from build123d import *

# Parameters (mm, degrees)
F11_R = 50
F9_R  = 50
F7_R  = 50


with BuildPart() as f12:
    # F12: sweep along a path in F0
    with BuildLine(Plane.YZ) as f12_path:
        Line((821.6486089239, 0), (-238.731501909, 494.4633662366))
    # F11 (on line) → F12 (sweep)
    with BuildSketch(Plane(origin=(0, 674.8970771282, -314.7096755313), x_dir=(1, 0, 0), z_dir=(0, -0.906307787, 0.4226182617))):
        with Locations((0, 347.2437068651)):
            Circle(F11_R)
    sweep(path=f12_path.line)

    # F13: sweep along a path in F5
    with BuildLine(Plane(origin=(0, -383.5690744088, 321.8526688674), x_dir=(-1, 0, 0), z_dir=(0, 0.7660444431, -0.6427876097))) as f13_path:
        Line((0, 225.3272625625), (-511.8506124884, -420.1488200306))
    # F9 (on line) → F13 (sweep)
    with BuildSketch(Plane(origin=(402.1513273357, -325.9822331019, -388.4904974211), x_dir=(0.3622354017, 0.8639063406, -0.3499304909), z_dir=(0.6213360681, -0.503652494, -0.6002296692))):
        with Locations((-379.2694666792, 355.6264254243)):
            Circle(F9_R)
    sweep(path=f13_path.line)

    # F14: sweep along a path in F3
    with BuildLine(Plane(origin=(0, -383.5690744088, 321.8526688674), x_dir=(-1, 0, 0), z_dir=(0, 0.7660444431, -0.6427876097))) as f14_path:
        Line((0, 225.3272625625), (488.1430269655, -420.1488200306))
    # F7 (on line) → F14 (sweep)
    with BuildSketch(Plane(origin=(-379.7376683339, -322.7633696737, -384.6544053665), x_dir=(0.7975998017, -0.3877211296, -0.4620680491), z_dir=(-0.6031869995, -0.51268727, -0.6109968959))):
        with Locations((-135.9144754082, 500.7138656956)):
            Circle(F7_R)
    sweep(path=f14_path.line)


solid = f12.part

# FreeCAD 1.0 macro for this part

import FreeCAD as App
import Part
import Sketcher
from FreeCAD import Vector
Q = App.Units.Quantity

doc = App.newDocument("Part")
body = doc.addObject("PartDesign::Body", "Body")

# Sketch on an angled plane
sketch1 = body.newObject("Sketcher::SketchObject", "Sketch")
sketch1.Placement = App.Placement(Vector(0, 674.897077, -314.709676), App.Rotation(Vector(1, 0, 0), Vector(0, 0.422618262, 0.906307787), Vector(0, -0.906307787, 0.422618262), "ZXY"))
sketch1.addGeometry(Part.Circle(Vector(0, 347, 0), Vector(0, 0, 1), 50), False)
sketch1.addConstraint([
    Sketcher.Constraint("PointOnObject", 0, 3, -2),
    Sketcher.Constraint("Diameter", 0, Q("100 mm")),
    Sketcher.Constraint("DistanceY", -1, 1, 0, 3, Q("347.243707 mm")),
])

# Sketch on an angled plane
sketch2 = body.newObject("Sketcher::SketchObject", "Sketch001")
sketch2.Placement = App.Placement(Vector(0, 146.751532, 314.709676), App.Rotation(Vector(0, 0.906307787, -0.422618262), Vector(1, 0, 0), Vector(0, -0.422618262, -0.906307787), "ZXY"))
sketch2.addGeometry(Part.LineSegment(Vector(745, 0, 0), Vector(-425, 0, 0)), False)
sketch2.addConstraint([
    Sketcher.Constraint("Horizontal", 0),
    Sketcher.Constraint("PointOnObject", 0, 1, -1),
    Sketcher.Constraint("DistanceX", 0, 2, 0, 1, Q("1170 mm")),
    Sketcher.Constraint("DistanceX", -1, 1, 0, 1, Q("744.666533 mm")),
])
doc.recompute()

additivepipe = body.newObject("PartDesign::AdditivePipe", "AdditivePipe")
additivepipe.Profile = sketch1
additivepipe.Spine = (sketch2, ["Edge1"])

# Sketch on an angled plane
sketch3 = body.newObject("Sketcher::SketchObject", "Sketch002")
sketch3.Placement = App.Placement(Vector(402.151327, -325.982233, -388.490497), App.Rotation(Vector(0.362235402, 0.863906341, -0.349930491), Vector(0.694785582, 0, 0.719216933), Vector(0.621336068, -0.503652494, -0.600229669), "ZXY"))
sketch3.addGeometry(Part.Circle(Vector(-379, 356, 0), Vector(0, 0, 1), 50), False)
sketch3.addConstraint([
    Sketcher.Constraint("Diameter", 0, Q("100 mm")),
    Sketcher.Constraint("DistanceX", 0, 3, -1, 1, Q("379.269467 mm")),
    Sketcher.Constraint("DistanceY", -1, 1, 0, 3, Q("355.626426 mm")),
])

# Sketch on an angled plane
sketch4 = body.newObject("Sketcher::SketchObject", "Sketch003")
sketch4.Placement = App.Placement(Vector(247.084113, 0, 255.772547), App.Rotation(Vector(0.719216932, 0, -0.694785581), Vector(0, 0.999999999, 0), Vector(0.694785581, 0, 0.719216932), "ZXY"))
sketch4.addGeometry(Part.LineSegment(Vector(-344, -239, 0), Vector(368, -654, 0)), False)
sketch4.addConstraint([
    Sketcher.Constraint("DistanceY", 0, 1, -1, 1, Q("238.731501 mm")),
    Sketcher.Constraint("DistanceY", 0, 2, -1, 1, Q("653.635529 mm")),
    Sketcher.Constraint("Distance", 0, Q("823.790277 mm")),
    Sketcher.Constraint("DistanceX", 0, 1, -1, 1, Q("343.546017 mm")),
])
doc.recompute()

additivepipe2 = body.newObject("PartDesign::AdditivePipe", "AdditivePipe001")
additivepipe2.Profile = sketch3
additivepipe2.Spine = (sketch4, ["Edge1"])

# Sketch on an angled plane
sketch5 = body.newObject("Sketcher::SketchObject", "Sketch004")
sketch5.Placement = App.Placement(Vector(-379.737668, -322.76337, -384.654405), App.Rotation(Vector(0.797599802, -0.38772113, -0.462068049), Vector(0, -0.766044444, 0.64278761), Vector(-0.603187, -0.51268727, -0.610996896), "ZXY"))
sketch5.addGeometry(Part.Circle(Vector(-136, 501, 0), Vector(0, 0, 1), 50), False)
sketch5.addConstraint([
    Sketcher.Constraint("Diameter", 0, Q("100 mm")),
    Sketcher.Constraint("DistanceX", 0, 3, -1, 1, Q("135.914476 mm")),
    Sketcher.Constraint("DistanceY", -1, 1, 0, 3, Q("500.713866 mm")),
])

# Sketch on an angled plane
sketch6 = body.newObject("Sketcher::SketchObject", "Sketch005")
sketch6.Placement = App.Placement(Vector(-247.211226, 0, 244.051318), App.Rotation(Vector(-0.702543983, 0, -0.711640325), Vector(0, 1, 0), Vector(0.711640325, 0, -0.702543983), "ZXY"))
sketch6.addGeometry(Part.LineSegment(Vector(-352, -239, 0), Vector(343, -654, 0)), False)
sketch6.addConstraint([
    Sketcher.Constraint("DistanceX", 0, 1, -1, 1, Q("351.880071 mm")),
    Sketcher.Constraint("DistanceY", 0, 2, -1, 1, Q("653.63553 mm")),
    Sketcher.Constraint("DistanceY", 0, 2, 0, 1, Q("414.904028 mm")),
    Sketcher.Constraint("Distance", 0, Q("809.273123 mm")),
])
doc.recompute()

additivepipe3 = body.newObject("PartDesign::AdditivePipe", "AdditivePipe002")
additivepipe3.Profile = sketch5
additivepipe3.Spine = (sketch6, ["Edge1"])

doc.recompute()
